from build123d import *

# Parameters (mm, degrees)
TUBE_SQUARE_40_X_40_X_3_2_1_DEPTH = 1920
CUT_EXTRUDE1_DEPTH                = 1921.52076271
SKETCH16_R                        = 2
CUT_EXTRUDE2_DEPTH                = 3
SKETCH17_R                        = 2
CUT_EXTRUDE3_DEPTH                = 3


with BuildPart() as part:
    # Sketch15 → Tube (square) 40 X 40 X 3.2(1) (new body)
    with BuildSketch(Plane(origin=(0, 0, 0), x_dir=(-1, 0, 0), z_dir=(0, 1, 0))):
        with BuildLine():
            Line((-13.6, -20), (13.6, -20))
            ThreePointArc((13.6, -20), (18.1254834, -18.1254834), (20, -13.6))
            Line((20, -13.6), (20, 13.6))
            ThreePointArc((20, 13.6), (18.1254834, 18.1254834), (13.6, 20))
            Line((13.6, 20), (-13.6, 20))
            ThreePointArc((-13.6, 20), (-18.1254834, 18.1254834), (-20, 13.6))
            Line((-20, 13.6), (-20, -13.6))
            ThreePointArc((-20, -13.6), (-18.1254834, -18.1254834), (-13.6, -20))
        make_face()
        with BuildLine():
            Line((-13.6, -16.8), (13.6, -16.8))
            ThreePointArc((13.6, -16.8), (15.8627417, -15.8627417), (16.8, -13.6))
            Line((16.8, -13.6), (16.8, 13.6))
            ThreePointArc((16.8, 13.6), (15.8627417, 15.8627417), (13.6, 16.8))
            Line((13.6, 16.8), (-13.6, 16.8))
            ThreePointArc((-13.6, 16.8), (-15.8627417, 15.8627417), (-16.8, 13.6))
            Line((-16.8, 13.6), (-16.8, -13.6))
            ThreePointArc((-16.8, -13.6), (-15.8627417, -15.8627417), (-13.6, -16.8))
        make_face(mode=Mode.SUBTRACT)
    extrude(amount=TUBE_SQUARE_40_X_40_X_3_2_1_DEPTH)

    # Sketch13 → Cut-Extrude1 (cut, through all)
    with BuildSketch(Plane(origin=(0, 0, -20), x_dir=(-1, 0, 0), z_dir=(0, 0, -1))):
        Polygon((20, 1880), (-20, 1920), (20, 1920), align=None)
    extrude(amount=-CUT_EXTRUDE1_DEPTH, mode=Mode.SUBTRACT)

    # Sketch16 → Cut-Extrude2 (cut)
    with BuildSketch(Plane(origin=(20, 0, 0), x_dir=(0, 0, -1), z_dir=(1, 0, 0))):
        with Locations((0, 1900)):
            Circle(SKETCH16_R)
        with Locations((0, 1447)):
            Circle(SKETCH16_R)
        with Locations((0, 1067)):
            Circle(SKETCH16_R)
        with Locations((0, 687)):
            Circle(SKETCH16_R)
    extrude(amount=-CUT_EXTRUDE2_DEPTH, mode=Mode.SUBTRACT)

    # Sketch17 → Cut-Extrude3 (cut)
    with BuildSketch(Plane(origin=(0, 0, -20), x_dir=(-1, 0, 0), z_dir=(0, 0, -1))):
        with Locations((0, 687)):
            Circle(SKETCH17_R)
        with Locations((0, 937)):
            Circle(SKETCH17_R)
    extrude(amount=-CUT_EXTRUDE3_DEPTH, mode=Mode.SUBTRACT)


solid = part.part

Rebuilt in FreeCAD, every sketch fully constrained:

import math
import FreeCAD as App
import Part
import Sketcher
from FreeCAD import Vector
Q = App.Units.Quantity


def add_polygon(sketch, points):
    """Adds a closed chain of lines whose ends are joined by coincident constraints."""
    first, n = sketch.GeometryCount, len(points)
    for a, b in zip(points, points[1:] + points[:1]):
        sketch.addGeometry(Part.LineSegment(App.Vector(*a, 0), App.Vector(*b, 0)), False)
    for i in range(n):
        sketch.addConstraint(Sketcher.Constraint("Coincident", first + i, 2, first + (i + 1) % n, 1))

doc = App.newDocument("Part")
params = doc.addObject("Spreadsheet::Sheet", "Params")
for row, (alias, value) in enumerate([
    ("sketch1_radius", "6.4 mm"),
    ("sketch1_radius2", "3.2 mm"),
    ("sketch1_width", "27.2 mm"),
    ("pad1_length", "1920 mm"),
    ("sketch2_width", "40 mm"),
    ("sketch3_diameter", "4 mm"),
    ("pocket2_length", "3 mm"),
    ("sketch4_diameter", "4 mm"),
    ("pocket3_length", "3 mm"),
], start=1):
    params.set(f"A{row}", alias)
    params.set(f"B{row}", "=" + value)
    params.setAlias(f"B{row}", alias)

body = doc.addObject("PartDesign::Body", "Body")

sketch1 = body.newObject("Sketcher::SketchObject", "Sketch")
sketch1.AttachmentSupport = (doc.getObject("XZ_Plane"), [""])
sketch1.MapMode = "FlatFace"
sketch1.addGeometry([
    Part.LineSegment(Vector(13.6, -20, 0), Vector(-13.6, -20, 0)),
    Part.ArcOfCircle(Part.Circle(Vector(-13.6, -13.6, 0), Vector(0, 0, 1), 6.4), math.radians(180), math.radians(270)),
    Part.LineSegment(Vector(-20, -13.6, 0), Vector(-20, 13.6, 0)),
    Part.ArcOfCircle(Part.Circle(Vector(-13.6, 13.6, 0), Vector(0, 0, 1), 6.4), math.radians(90), math.radians(180)),
    Part.LineSegment(Vector(-13.6, 20, 0), Vector(13.6, 20, 0)),
    Part.ArcOfCircle(Part.Circle(Vector(13.6, 13.6, 0), Vector(0, 0, 1), 6.4), math.radians(0), math.radians(90)),
    Part.LineSegment(Vector(20, 13.6, 0), Vector(20, -13.6, 0)),
    Part.ArcOfCircle(Part.Circle(Vector(13.6, -13.6, 0), Vector(0, 0, 1), 6.4), math.radians(-90), math.radians(0)),
    Part.LineSegment(Vector(-13.6, -16.8, 0), Vector(13.6, -16.8, 0)),
    Part.ArcOfCircle(Part.Circle(Vector(13.6, -13.6, 0), Vector(0, 0, 1), 3.2), math.radians(-90), math.radians(0)),
    Part.LineSegment(Vector(16.8, -13.6, 0), Vector(16.8, 13.6, 0)),
    Part.ArcOfCircle(Part.Circle(Vector(13.6, 13.6, 0), Vector(0, 0, 1), 3.2), math.radians(0), math.radians(90)),
    Part.LineSegment(Vector(13.6, 16.8, 0), Vector(-13.6, 16.8, 0)),
    Part.ArcOfCircle(Part.Circle(Vector(-13.6, 13.6, 0), Vector(0, 0, 1), 3.2), math.radians(90), math.radians(180)),
    Part.LineSegment(Vector(-16.8, 13.6, 0), Vector(-16.8, -13.6, 0)),
    Part.ArcOfCircle(Part.Circle(Vector(-13.6, -13.6, 0), Vector(0, 0, 1), 3.2), math.radians(180), math.radians(270)),
], False)
sketch1.addConstraint([
    Sketcher.Constraint("Tangent", 0, 2, 1, 2),
    Sketcher.Constraint("Tangent", 1, 1, 2, 1),
    Sketcher.Constraint("Tangent", 2, 2, 3, 2),
    Sketcher.Constraint("Tangent", 3, 1, 4, 1),
    Sketcher.Constraint("Tangent", 4, 2, 5, 2),
    Sketcher.Constraint("Tangent", 5, 1, 6, 1),
    Sketcher.Constraint("Tangent", 6, 2, 7, 2),
    Sketcher.Constraint("Tangent", 7, 1, 0, 1),
    Sketcher.Constraint("Tangent", 8, 2, 9, 1),
    Sketcher.Constraint("Tangent", 9, 2, 10, 1),
    Sketcher.Constraint("Tangent", 10, 2, 11, 1),
    Sketcher.Constraint("Tangent", 11, 2, 12, 1),
    Sketcher.Constraint("Tangent", 12, 2, 13, 1),
    Sketcher.Constraint("Tangent", 13, 2, 14, 1),
    Sketcher.Constraint("Tangent", 14, 2, 15, 1),
    Sketcher.Constraint("Tangent", 15, 2, 8, 1),
    Sketcher.Constraint("Horizontal", 0),
    Sketcher.Constraint("Vertical", 2),
    Sketcher.Constraint("Horizontal", 4),
    Sketcher.Constraint("Vertical", 6),
    Sketcher.Constraint("Horizontal", 8),
    Sketcher.Constraint("Vertical", 10),
    Sketcher.Constraint("Horizontal", 12),
    Sketcher.Constraint("Vertical", 14),
    Sketcher.Constraint("Coincident", 9, 3, 7, 3),
    Sketcher.Constraint("Coincident", 11, 3, 5, 3),
    Sketcher.Constraint("Coincident", 13, 3, 3, 3),
    Sketcher.Constraint("Equal", 1, 3),
    Sketcher.Constraint("Equal", 3, 5),
    Sketcher.Constraint("Equal", 5, 7),
    Sketcher.Constraint("Equal", 13, 15),
    Sketcher.Constraint("Symmetric", 1, 3, 5, 3, -1, 1),
    Sketcher.Constraint("Equal", 12, 2),
    Sketcher.Constraint("Radius", 1, Q("6.4 mm")),
    Sketcher.Constraint("Radius", 9, Q("3.2 mm")),
    Sketcher.Constraint("DistanceX", 0, 2, 0, 1, Q("27.2 mm")),
])
sketch1.setExpression("Constraints[33]", "Params.sketch1_radius")
sketch1.setExpression("Constraints[34]", "Params.sketch1_radius2")
sketch1.setExpression("Constraints[35]", "Params.sketch1_width")
pad1 = body.newObject("PartDesign::Pad", "Pad")
pad1.Profile = sketch1
pad1.setExpression("Length", "Params.pad1_length")
pad1.Reversed = True

sketch2 = body.newObject("Sketcher::SketchObject", "Sketch001")
sketch2.AttachmentSupport = (doc.getObject("XY_Plane"), [""])
sketch2.MapMode = "FlatFace"
sketch2.AttachmentOffset = App.Placement(Vector(0, 0, -20), App.Rotation())
add_polygon(sketch2, [(20, 1920), (-20, 1880), (-20, 1920)])
sketch2.addConstraint([
    Sketcher.Constraint("Vertical", 1),
    Sketcher.Constraint("Horizontal", 2),
    Sketcher.Constraint("Equal", 2, 1),
    Sketcher.Constraint("DistanceX", 2, 1, 2, 2, Q("40 mm")),
    Sketcher.Constraint("DistanceX", 0, 2, -1, 1, Q("20 mm")),
    Sketcher.Constraint("DistanceY", -1, 1, 0, 2, Q("1880 mm")),
])
sketch2.setExpression("Constraints[6]", "Params.sketch2_width")
pocket1 = body.newObject("PartDesign::Pocket", "Pocket")
pocket1.Profile = sketch2
pocket1.Type = "ThroughAll"
pocket1.Reversed = True

sketch3 = body.newObject("Sketcher::SketchObject", "Sketch002")
sketch3.AttachmentSupport = (doc.getObject("YZ_Plane"), [""])
sketch3.MapMode = "FlatFace"
sketch3.AttachmentOffset = App.Placement(Vector(0, 0, 20), App.Rotation())
sketch3.addGeometry([
    Part.Circle(Vector(1900, 0, 0), Vector(0, 0, 1), 2),
    Part.Circle(Vector(1447, 0, 0), Vector(0, 0, 1), 2),
    Part.Circle(Vector(1067, 0, 0), Vector(0, 0, 1), 2),
    Part.Circle(Vector(687, 0, 0), Vector(0, 0, 1), 2),
], False)
sketch3.addConstraint([
    Sketcher.Constraint("Equal", 0, 1),
    Sketcher.Constraint("Equal", 1, 2),
    Sketcher.Constraint("Equal", 2, 3),
    Sketcher.Constraint("PointOnObject", 0, 3, -1),
    Sketcher.Constraint("PointOnObject", 1, 3, -1),
    Sketcher.Constraint("PointOnObject", 2, 3, -1),
    Sketcher.Constraint("PointOnObject", 3, 3, -1),
    Sketcher.Constraint("Diameter", 0, Q("4 mm")),
    Sketcher.Constraint("DistanceX", -1, 1, 0, 3, Q("1900 mm")),
    Sketcher.Constraint("DistanceX", -1, 1, 1, 3, Q("1447 mm")),
    Sketcher.Constraint("DistanceX", -1, 1, 2, 3, Q("1067 mm")),
    Sketcher.Constraint("DistanceX", -1, 1, 3, 3, Q("687 mm")),
])
sketch3.setExpression("Constraints[7]", "Params.sketch3_diameter")
pocket2 = body.newObject("PartDesign::Pocket", "Pocket001")
pocket2.Profile = sketch3
pocket2.setExpression("Length", "Params.pocket2_length")

sketch4 = body.newObject("Sketcher::SketchObject", "Sketch003")
sketch4.AttachmentSupport = (doc.getObject("XY_Plane"), [""])
sketch4.MapMode = "FlatFace"
sketch4.AttachmentOffset = App.Placement(Vector(0, 0, -20), App.Rotation())
sketch4.addGeometry([
    Part.Circle(Vector(0, 687, 0), Vector(0, 0, 1), 2),
    Part.Circle(Vector(0, 937, 0), Vector(0, 0, 1), 2),
], False)
sketch4.addConstraint([
    Sketcher.Constraint("Equal", 0, 1),
    Sketcher.Constraint("PointOnObject", 0, 3, -2),
    Sketcher.Constraint("PointOnObject", 1, 3, -2),
    Sketcher.Constraint("Diameter", 0, Q("4 mm")),
    Sketcher.Constraint("DistanceY", -1, 1, 0, 3, Q("687 mm")),
    Sketcher.Constraint("DistanceY", -1, 1, 1, 3, Q("937 mm")),
])
sketch4.setExpression("Constraints[3]", "Params.sketch4_diameter")
pocket3 = body.newObject("PartDesign::Pocket", "Pocket002")
pocket3.Profile = sketch4
pocket3.setExpression("Length", "Params.pocket3_length")
pocket3.Reversed = True

doc.recompute()
